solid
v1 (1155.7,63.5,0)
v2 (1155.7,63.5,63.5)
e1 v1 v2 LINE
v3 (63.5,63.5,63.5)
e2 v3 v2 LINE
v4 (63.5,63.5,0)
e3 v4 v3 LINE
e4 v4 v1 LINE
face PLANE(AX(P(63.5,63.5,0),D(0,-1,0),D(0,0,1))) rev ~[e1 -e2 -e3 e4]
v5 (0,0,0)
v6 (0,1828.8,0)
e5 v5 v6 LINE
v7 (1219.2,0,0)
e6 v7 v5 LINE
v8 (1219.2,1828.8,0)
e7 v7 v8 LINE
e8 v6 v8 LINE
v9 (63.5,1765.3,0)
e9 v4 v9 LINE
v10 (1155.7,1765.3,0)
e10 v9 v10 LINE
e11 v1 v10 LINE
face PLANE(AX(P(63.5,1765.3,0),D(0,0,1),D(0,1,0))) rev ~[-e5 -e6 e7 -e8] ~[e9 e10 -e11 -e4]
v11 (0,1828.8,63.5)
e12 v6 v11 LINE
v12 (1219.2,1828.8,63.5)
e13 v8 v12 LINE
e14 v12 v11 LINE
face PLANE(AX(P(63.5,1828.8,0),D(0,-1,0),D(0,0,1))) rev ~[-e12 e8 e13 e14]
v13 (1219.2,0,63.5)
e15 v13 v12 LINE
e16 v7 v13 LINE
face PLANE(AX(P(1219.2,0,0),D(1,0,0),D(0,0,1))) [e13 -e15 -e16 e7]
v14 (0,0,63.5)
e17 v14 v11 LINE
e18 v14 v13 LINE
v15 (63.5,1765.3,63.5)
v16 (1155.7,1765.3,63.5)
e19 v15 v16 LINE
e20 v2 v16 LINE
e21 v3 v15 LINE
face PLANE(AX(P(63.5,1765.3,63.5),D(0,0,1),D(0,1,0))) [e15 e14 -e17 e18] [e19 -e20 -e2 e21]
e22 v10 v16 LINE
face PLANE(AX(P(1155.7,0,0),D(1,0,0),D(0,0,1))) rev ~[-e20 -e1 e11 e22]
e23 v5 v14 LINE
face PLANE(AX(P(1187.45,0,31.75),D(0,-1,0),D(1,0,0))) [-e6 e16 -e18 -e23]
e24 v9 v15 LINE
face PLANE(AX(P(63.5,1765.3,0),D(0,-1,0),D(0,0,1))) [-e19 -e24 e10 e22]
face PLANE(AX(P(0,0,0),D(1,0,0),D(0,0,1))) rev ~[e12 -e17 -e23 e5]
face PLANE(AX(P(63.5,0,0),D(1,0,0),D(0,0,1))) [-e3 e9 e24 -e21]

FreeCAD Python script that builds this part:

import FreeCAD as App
import Part
import Sketcher

V = App.Vector
Q = App.Units.Quantity


def add_polygon(sketch, points):
    """Adds a closed chain of lines whose ends are joined by coincident constraints."""
    first, n = sketch.GeometryCount, len(points)
    for a, b in zip(points, points[1:] + points[:1]):
        sketch.addGeometry(Part.LineSegment(App.Vector(*a, 0), App.Vector(*b, 0)), False)
    for i in range(n):
        sketch.addConstraint(Sketcher.Constraint("Coincident", first + i, 2, first + (i + 1) % n, 1))

doc = App.newDocument("Part")
body = doc.addObject("PartDesign::Body", "Body")

sketch1 = body.newObject("Sketcher::SketchObject", "Sketch")
sketch1.AttachmentSupport = (doc.getObject("XZ_Plane"), [""])
sketch1.MapMode = "FlatFace"
add_polygon(sketch1, [(0, 63.5), (0, 0), (63.5, 0), (63.5, 63.5)])
sketch1.addConstraint(Sketcher.Constraint("Vertical", 0))
sketch1.addConstraint(Sketcher.Constraint("Horizontal", 1))
sketch1.addConstraint(Sketcher.Constraint("Vertical", 2))
sketch1.addConstraint(Sketcher.Constraint("Horizontal", 3))
sketch1.addConstraint(Sketcher.Constraint("Coincident", 0, 2, -1, 1))
sketch1.addConstraint(Sketcher.Constraint("Equal", 3, 0))
sketch1.addConstraint(Sketcher.Constraint("DistanceX", 1, 1, 1, 2, Q("2.5 in")))
pad1 = body.newObject("PartDesign::Pad", "Pad")
pad1.Profile = sketch1
pad1.Length = Q("72 in")
pad1.Reversed = True

sketch2 = body.newObject("Sketcher::SketchObject", "Sketch001")
sketch2.AttachmentSupport = (doc.getObject("YZ_Plane"), [""])
sketch2.MapMode = "FlatFace"
sketch2.AttachmentOffset = App.Placement(V(0, 0, 2.5 * 25.4), App.Rotation())
add_polygon(sketch2, [(0, 63.5), (0, 0), (63.5, 0), (63.5, 63.5)])
sketch2.addConstraint(Sketcher.Constraint("Vertical", 0))
sketch2.addConstraint(Sketcher.Constraint("Horizontal", 1))
sketch2.addConstraint(Sketcher.Constraint("Vertical", 2))
sketch2.addConstraint(Sketcher.Constraint("Horizontal", 3))
sketch2.addConstraint(Sketcher.Constraint("Coincident", 0, 2, -1, 1))
sketch2.addConstraint(Sketcher.Constraint("Equal", 3, 0))
sketch2.addConstraint(Sketcher.Constraint("DistanceX", 1, 1, 1, 2, Q("2.5 in")))
pad2 = body.newObject("PartDesign::Pad", "Pad001")
pad2.Profile = sketch2
pad2.Length = Q("43 in")

sketch3 = body.newObject("Sketcher::SketchObject", "Sketch002")
sketch3.AttachmentSupport = (doc.getObject("XZ_Plane"), [""])
sketch3.MapMode = "FlatFace"
add_polygon(sketch3, [(1155.7, 63.5), (1155.7, 0), (1219.2, 0), (1219.2, 63.5)])
sketch3.addConstraint(Sketcher.Constraint("Vertical", 0))
sketch3.addConstraint(Sketcher.Constraint("Horizontal", 1))
sketch3.addConstraint(Sketcher.Constraint("Vertical", 2))
sketch3.addConstraint(Sketcher.Constraint("Horizontal", 3))
sketch3.addConstraint(Sketcher.Constraint("PointOnObject", 0, 2, -1))
sketch3.addConstraint(Sketcher.Constraint("Equal", 3, 0))
sketch3.addConstraint(Sketcher.Constraint("DistanceX", 1, 1, 1, 2, Q("2.5 in")))
sketch3.addConstraint(Sketcher.Constraint("DistanceX", -1, 1, 1, 2, Q("48 in")))
pad3 = body.newObject("PartDesign::Pad", "Pad002")
pad3.Profile = sketch3
pad3.Length = Q("72 in")
pad3.Reversed = True

sketch4 = body.newObject("Sketcher::SketchObject", "Sketch003")
sketch4.AttachmentSupport = (doc.getObject("YZ_Plane"), [""])
sketch4.MapMode = "FlatFace"
sketch4.AttachmentOffset = App.Placement(V(0, 0, 2.5 * 25.4), App.Rotation())
add_polygon(sketch4, [(1765.3, 63.5), (1765.3, 0), (1828.8, 0), (1828.8, 63.5)])
sketch4.addConstraint(Sketcher.Constraint("Vertical", 0))
sketch4.addConstraint(Sketcher.Constraint("Horizontal", 1))
sketch4.addConstraint(Sketcher.Constraint("Vertical", 2))
sketch4.addConstraint(Sketcher.Constraint("Horizontal", 3))
sketch4.addConstraint(Sketcher.Constraint("PointOnObject", 0, 2, -1))
sketch4.addConstraint(Sketcher.Constraint("Equal", 3, 0))
sketch4.addConstraint(Sketcher.Constraint("DistanceX", 1, 1, 1, 2, Q("2.5 in")))
sketch4.addConstraint(Sketcher.Constraint("DistanceX", -1, 1, 1, 2, Q("72 in")))
pad4 = body.newObject("PartDesign::Pad", "Pad003")
pad4.Profile = sketch4
pad4.Length = Q("43 in")

doc.recompute()
